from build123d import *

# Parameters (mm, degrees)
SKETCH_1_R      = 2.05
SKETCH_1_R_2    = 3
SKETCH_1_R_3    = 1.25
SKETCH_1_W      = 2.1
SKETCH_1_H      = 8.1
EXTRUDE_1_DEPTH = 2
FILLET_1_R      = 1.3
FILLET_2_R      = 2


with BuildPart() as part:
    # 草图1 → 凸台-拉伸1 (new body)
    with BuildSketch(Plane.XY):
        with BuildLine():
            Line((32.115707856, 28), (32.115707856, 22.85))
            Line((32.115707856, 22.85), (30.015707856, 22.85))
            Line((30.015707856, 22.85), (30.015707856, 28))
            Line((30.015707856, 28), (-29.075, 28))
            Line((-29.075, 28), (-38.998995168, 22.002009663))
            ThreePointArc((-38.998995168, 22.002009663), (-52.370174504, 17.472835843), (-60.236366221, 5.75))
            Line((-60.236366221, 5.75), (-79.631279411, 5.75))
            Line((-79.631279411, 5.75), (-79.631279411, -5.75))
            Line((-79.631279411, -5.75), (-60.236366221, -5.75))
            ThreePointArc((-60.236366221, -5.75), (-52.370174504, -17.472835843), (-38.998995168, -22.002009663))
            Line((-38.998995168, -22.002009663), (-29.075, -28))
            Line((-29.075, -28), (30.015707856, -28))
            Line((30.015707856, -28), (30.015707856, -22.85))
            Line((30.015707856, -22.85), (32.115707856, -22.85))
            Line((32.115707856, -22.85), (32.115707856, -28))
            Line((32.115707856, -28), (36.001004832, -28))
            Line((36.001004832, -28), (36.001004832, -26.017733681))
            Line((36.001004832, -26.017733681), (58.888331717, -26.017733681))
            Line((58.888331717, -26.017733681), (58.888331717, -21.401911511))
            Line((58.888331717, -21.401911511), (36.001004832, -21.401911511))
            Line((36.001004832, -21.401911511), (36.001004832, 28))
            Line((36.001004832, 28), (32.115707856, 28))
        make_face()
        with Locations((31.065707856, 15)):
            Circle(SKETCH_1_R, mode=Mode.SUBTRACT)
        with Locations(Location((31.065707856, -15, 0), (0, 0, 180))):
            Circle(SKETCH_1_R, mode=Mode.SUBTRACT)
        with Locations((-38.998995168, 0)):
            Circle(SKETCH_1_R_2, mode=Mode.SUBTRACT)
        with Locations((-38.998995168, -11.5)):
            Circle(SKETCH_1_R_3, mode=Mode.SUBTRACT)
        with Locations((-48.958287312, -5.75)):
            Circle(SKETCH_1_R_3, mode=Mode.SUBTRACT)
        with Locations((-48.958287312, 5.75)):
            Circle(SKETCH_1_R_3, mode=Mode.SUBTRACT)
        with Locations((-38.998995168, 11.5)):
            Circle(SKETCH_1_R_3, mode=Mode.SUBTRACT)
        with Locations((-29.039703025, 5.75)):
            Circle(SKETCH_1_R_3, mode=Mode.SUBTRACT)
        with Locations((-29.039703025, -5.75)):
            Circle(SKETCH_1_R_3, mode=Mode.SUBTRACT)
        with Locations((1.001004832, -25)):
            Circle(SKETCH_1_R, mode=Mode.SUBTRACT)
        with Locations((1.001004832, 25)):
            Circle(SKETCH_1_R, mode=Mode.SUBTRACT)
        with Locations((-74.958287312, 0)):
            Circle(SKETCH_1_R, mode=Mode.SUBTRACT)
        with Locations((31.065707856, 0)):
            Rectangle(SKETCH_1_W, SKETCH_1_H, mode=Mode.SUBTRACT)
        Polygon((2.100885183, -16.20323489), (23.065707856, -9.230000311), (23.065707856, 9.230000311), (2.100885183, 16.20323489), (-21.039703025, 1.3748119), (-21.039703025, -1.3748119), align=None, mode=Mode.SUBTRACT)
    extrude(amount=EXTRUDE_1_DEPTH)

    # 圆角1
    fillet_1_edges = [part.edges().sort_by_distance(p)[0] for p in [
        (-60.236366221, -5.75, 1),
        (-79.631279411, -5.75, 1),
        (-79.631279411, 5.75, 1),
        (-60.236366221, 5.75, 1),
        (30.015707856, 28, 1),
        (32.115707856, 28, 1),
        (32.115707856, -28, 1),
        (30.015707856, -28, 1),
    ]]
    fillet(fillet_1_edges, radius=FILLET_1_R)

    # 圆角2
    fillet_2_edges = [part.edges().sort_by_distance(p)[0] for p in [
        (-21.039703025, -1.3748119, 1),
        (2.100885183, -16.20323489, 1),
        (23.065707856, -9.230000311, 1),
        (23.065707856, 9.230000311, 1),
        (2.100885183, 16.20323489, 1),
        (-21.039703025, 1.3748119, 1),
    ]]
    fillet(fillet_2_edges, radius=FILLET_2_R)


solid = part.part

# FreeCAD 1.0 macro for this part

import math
import FreeCAD as App
import Part
import Sketcher
Q = App.Units.Quantity


def edges_at(feature, points):
    """Names of the edges that pass closest to the given points."""
    edges = feature.Shape.Edges
    near = lambda p: min(range(len(edges)), key=lambda i: edges[i].distToShape(Part.Vertex(*p))[0])
    return sorted({f"Edge{near(p) + 1}" for p in points})

doc = App.newDocument("Part")
body = doc.addObject("PartDesign::Body", "Body")

sketch1 = body.newObject("Sketcher::SketchObject", "Sketch")
sketch1.AttachmentSupport = (doc.getObject("XY_Plane"), [""])
sketch1.MapMode = "FlatFace"
sketch1.addGeometry([
    Part.LineSegment(App.Vector(32.1, 28, 0), App.Vector(32.1, 22.9, 0)),
    Part.LineSegment(App.Vector(32.1, 22.9, 0), App.Vector(30, 22.9, 0)),
    Part.LineSegment(App.Vector(30, 22.9, 0), App.Vector(30, 28, 0)),
    Part.LineSegment(App.Vector(30, 28, 0), App.Vector(-29.1, 28, 0)),
    Part.LineSegment(App.Vector(-29.1, 28, 0), App.Vector(-39, 22, 0)),
    Part.ArcOfCircle(Part.Circle(App.Vector(-39, 0, 0), App.Vector(0, 0, 1), 22), math.radians(90), math.radians(165)),
    Part.LineSegment(App.Vector(-60.2, 5.8, 0), App.Vector(-79.6, 5.8, 0)),
    Part.LineSegment(App.Vector(-79.6, 5.8, 0), App.Vector(-79.6, -5.8, 0)),
    Part.LineSegment(App.Vector(-79.6, -5.8, 0), App.Vector(-60.2, -5.8, 0)),
    Part.ArcOfCircle(Part.Circle(App.Vector(-39, 0, 0), App.Vector(0, 0, 1), 22), math.radians(-165), math.radians(-90)),
    Part.LineSegment(App.Vector(-39, -22, 0), App.Vector(-29.1, -28, 0)),
    Part.LineSegment(App.Vector(-29.1, -28, 0), App.Vector(30, -28, 0)),
    Part.LineSegment(App.Vector(30, -28, 0), App.Vector(30, -22.9, 0)),
    Part.LineSegment(App.Vector(30, -22.9, 0), App.Vector(32.1, -22.9, 0)),
    Part.LineSegment(App.Vector(32.1, -22.9, 0), App.Vector(32.1, -28, 0)),
    Part.LineSegment(App.Vector(32.1, -28, 0), App.Vector(36, -28, 0)),
    Part.LineSegment(App.Vector(36, -28, 0), App.Vector(36, -26, 0)),
    Part.LineSegment(App.Vector(36, -26, 0), App.Vector(58.9, -26, 0)),
    Part.LineSegment(App.Vector(58.9, -26, 0), App.Vector(58.9, -21.4, 0)),
    Part.LineSegment(App.Vector(58.9, -21.4, 0), App.Vector(36, -21.4, 0)),
    Part.LineSegment(App.Vector(36, -21.4, 0), App.Vector(36, 28, 0)),
    Part.LineSegment(App.Vector(36, 28, 0), App.Vector(32.1, 28, 0)),
    Part.Circle(App.Vector(-75, 0, 0), App.Vector(0, 0, 1), 2),
    Part.Circle(App.Vector(-39, -11.5, 0), App.Vector(0, 0, 1), 1.2),
    Part.Circle(App.Vector(-49, -5.8, 0), App.Vector(0, 0, 1), 1.2),
    Part.Circle(App.Vector(-39, 0, 0), App.Vector(0, 0, 1), 3),
    Part.Circle(App.Vector(-29, -5.8, 0), App.Vector(0, 0, 1), 1.2),
    Part.Circle(App.Vector(1, -25, 0), App.Vector(0, 0, 1), 2),
    Part.Circle(App.Vector(31.1, -15, 0), App.Vector(0, 0, 1), 2),
    Part.LineSegment(App.Vector(23.1, -9.2, 0), App.Vector(2.1, -16.2, 0)),
    Part.LineSegment(App.Vector(2.1, -16.2, 0), App.Vector(-21, -1.4, 0)),
    Part.LineSegment(App.Vector(-21, -1.4, 0), App.Vector(-21, 1.4, 0)),
    Part.LineSegment(App.Vector(-21, 1.4, 0), App.Vector(2.1, 16.2, 0)),
    Part.LineSegment(App.Vector(2.1, 16.2, 0), App.Vector(23.1, 9.2, 0)),
    Part.LineSegment(App.Vector(23.1, 9.2, 0), App.Vector(23.1, -9.2, 0)),
    Part.LineSegment(App.Vector(32.1, -4, 0), App.Vector(30, -4, 0)),
    Part.LineSegment(App.Vector(30, -4, 0), App.Vector(30, 4, 0)),
    Part.LineSegment(App.Vector(30, 4, 0), App.Vector(32.1, 4, 0)),
    Part.LineSegment(App.Vector(32.1, 4, 0), App.Vector(32.1, -4, 0)),
    Part.Circle(App.Vector(-49, 5.8, 0), App.Vector(0, 0, 1), 1.2),
    Part.Circle(App.Vector(-29, 5.8, 0), App.Vector(0, 0, 1), 1.2),
    Part.Circle(App.Vector(-39, 11.5, 0), App.Vector(0, 0, 1), 1.2),
    Part.Circle(App.Vector(1, 25, 0), App.Vector(0, 0, 1), 2),
    Part.Circle(App.Vector(31.1, 15, 0), App.Vector(0, 0, 1), 2),
], False)
sketch1.addConstraint([
    Sketcher.Constraint("Coincident", 0, 2, 1, 1),
    Sketcher.Constraint("Coincident", 1, 2, 2, 1),
    Sketcher.Constraint("Coincident", 2, 2, 3, 1),
    Sketcher.Constraint("Coincident", 3, 2, 4, 1),
    Sketcher.Constraint("Coincident", 4, 2, 5, 1),
    Sketcher.Constraint("Coincident", 5, 2, 6, 1),
    Sketcher.Constraint("Coincident", 6, 2, 7, 1),
    Sketcher.Constraint("Coincident", 7, 2, 8, 1),
    Sketcher.Constraint("Coincident", 8, 2, 9, 1),
    Sketcher.Constraint("Coincident", 9, 2, 10, 1),
    Sketcher.Constraint("Coincident", 10, 2, 11, 1),
    Sketcher.Constraint("Coincident", 11, 2, 12, 1),
    Sketcher.Constraint("Coincident", 12, 2, 13, 1),
    Sketcher.Constraint("Coincident", 13, 2, 14, 1),
    Sketcher.Constraint("Coincident", 14, 2, 15, 1),
    Sketcher.Constraint("Coincident", 15, 2, 16, 1),
    Sketcher.Constraint("Coincident", 16, 2, 17, 1),
    Sketcher.Constraint("Coincident", 17, 2, 18, 1),
    Sketcher.Constraint("Coincident", 18, 2, 19, 1),
    Sketcher.Constraint("Coincident", 19, 2, 20, 1),
    Sketcher.Constraint("Coincident", 20, 2, 21, 1),
    Sketcher.Constraint("Coincident", 21, 2, 0, 1),
    Sketcher.Constraint("Coincident", 29, 2, 30, 1),
    Sketcher.Constraint("Coincident", 30, 2, 31, 1),
    Sketcher.Constraint("Coincident", 31, 2, 32, 1),
    Sketcher.Constraint("Coincident", 32, 2, 33, 1),
    Sketcher.Constraint("Coincident", 33, 2, 34, 1),
    Sketcher.Constraint("Coincident", 34, 2, 29, 1),
    Sketcher.Constraint("Coincident", 35, 2, 36, 1),
    Sketcher.Constraint("Coincident", 36, 2, 37, 1),
    Sketcher.Constraint("Coincident", 37, 2, 38, 1),
    Sketcher.Constraint("Coincident", 38, 2, 35, 1),
    Sketcher.Constraint("Vertical", 0),
    Sketcher.Constraint("Horizontal", 1),
    Sketcher.Constraint("Vertical", 2),
    Sketcher.Constraint("Horizontal", 3),
    Sketcher.Constraint("Horizontal", 6),
    Sketcher.Constraint("Vertical", 7),
    Sketcher.Constraint("Horizontal", 8),
    Sketcher.Constraint("Horizontal", 11),
    Sketcher.Constraint("Vertical", 12),
    Sketcher.Constraint("Horizontal", 13),
    Sketcher.Constraint("Vertical", 14),
    Sketcher.Constraint("Horizontal", 15),
    Sketcher.Constraint("Vertical", 16),
    Sketcher.Constraint("Horizontal", 17),
    Sketcher.Constraint("Vertical", 18),
    Sketcher.Constraint("Horizontal", 19),
    Sketcher.Constraint("Vertical", 20),
    Sketcher.Constraint("Horizontal", 21),
    Sketcher.Constraint("Vertical", 31),
    Sketcher.Constraint("Vertical", 34),
    Sketcher.Constraint("Horizontal", 35),
    Sketcher.Constraint("Vertical", 36),
    Sketcher.Constraint("Horizontal", 37),
    Sketcher.Constraint("Vertical", 38),
    Sketcher.Constraint("Coincident", 9, 3, 5, 3),
    Sketcher.Constraint("Coincident", 25, 3, 5, 3),
    Sketcher.Constraint("Equal", 5, 9),
    Sketcher.Constraint("Equal", 23, 24),
    Sketcher.Constraint("Equal", 24, 26),
    Sketcher.Constraint("Equal", 22, 27),
    Sketcher.Constraint("Equal", 27, 28),
    Sketcher.Constraint("Equal", 26, 39),
    Sketcher.Constraint("Equal", 39, 40),
    Sketcher.Constraint("Equal", 40, 41),
    Sketcher.Constraint("Equal", 28, 42),
    Sketcher.Constraint("Equal", 42, 43),
    Sketcher.Constraint("Symmetric", 24, 3, 39, 3, -1),
    Sketcher.Constraint("Symmetric", 26, 3, 40, 3, -1),
    Sketcher.Constraint("Symmetric", 23, 3, 41, 3, -1),
    Sketcher.Constraint("Symmetric", 27, 3, 42, 3, -1),
    Sketcher.Constraint("Symmetric", 28, 3, 43, 3, -1),
    Sketcher.Constraint("Symmetric", 5, 2, 8, 2, -1),
    Sketcher.Constraint("Symmetric", 3, 2, 10, 2, -1),
    Sketcher.Constraint("Symmetric", 1, 2, 12, 2, -1),
    Sketcher.Constraint("Symmetric", 15, 2, 20, 2, -1),
    Sketcher.Constraint("Symmetric", 29, 2, 32, 2, -1),
    Sketcher.Constraint("PointOnObject", 22, 3, -1),
    Sketcher.Constraint("Horizontal", 24, 3, 26, 3),
    Sketcher.Constraint("Horizontal", 40, 3, 5, 2),
    Sketcher.Constraint("Horizontal", 11, 2, 14, 2),
    Sketcher.Constraint("Vertical", 9, 3, 23, 3),
    Sketcher.Constraint("Vertical", 41, 3, 4, 2),
    Sketcher.Constraint("Vertical", 4, 2, 9, 2),
    Sketcher.Constraint("Vertical", 0, 2, 13, 2),
    Sketcher.Constraint("Vertical", 12, 2, 35, 2),
    Sketcher.Constraint("Vertical", 21, 2, 37, 2),
    Sketcher.Constraint("Equal", 30, 32),
    Sketcher.Constraint("Equal", 29, 33),
    Sketcher.Constraint("Diameter", 25, Q("6 mm")),
    Sketcher.Constraint("Diameter", 22, Q("4.1 mm")),
    Sketcher.Constraint("Diameter", 23, Q("2.5 mm")),
    Sketcher.Constraint("DistanceX", 1, 2, 1, 1, Q("2.1 mm")),
    Sketcher.Constraint("DistanceY", 7, 2, 7, 1, Q("11.5 mm")),
    Sketcher.Constraint("DistanceY", 36, 1, 36, 2, Q("8.1 mm")),
    Sketcher.Constraint("DistanceY", 27, 3, -1, 1, Q("25 mm")),
    Sketcher.Constraint("DistanceY", 28, 3, -1, 1, Q("15 mm")),
    Sketcher.Constraint("DistanceY", -1, 1, 2, 2, Q("28 mm")),
    Sketcher.Constraint("DistanceX", 22, 3, 24, 3, Q("26 mm")),
    Sketcher.Constraint("DistanceX", 23, 3, 27, 3, Q("40 mm")),
    Sketcher.Constraint("DistanceX", 42, 3, 20, 2, Q("35 mm")),
    Sketcher.Constraint("DistanceX", 26, 3, 30, 2, Q("8 mm")),
    Sketcher.Constraint("DistanceX", 33, 2, 43, 3, Q("8 mm")),
    Sketcher.Constraint("DistanceY", 0, 2, 0, 1, Q("5.15 mm")),
    Sketcher.Constraint("DistanceY", 34, 2, 34, 1, Q("18.460001 mm")),
    Sketcher.Constraint("DistanceY", 23, 3, -1, 1, Q("11.5 mm")),
    Sketcher.Constraint("DistanceY", 12, 2, 35, 2, Q("18.8 mm")),
    Sketcher.Constraint("Radius", 5, Q("22.00201 mm")),
    Sketcher.Constraint("DistanceX", 43, 3, 0, 2, Q("1.05 mm")),
    Sketcher.Constraint("DistanceX", 3, 2, -1, 1, Q("29.075 mm")),
    Sketcher.Constraint("DistanceY", 20, 1, 20, 2, Q("49.401912 mm")),
    Sketcher.Constraint("DistanceX", 3, 2, 3, 1, Q("59.090708 mm")),
    Sketcher.Constraint("DistanceX", 6, 2, 6, 1, Q("19.394913 mm")),
    Sketcher.Constraint("DistanceX", 15, 1, 15, 2, Q("3.885297 mm")),
    Sketcher.Constraint("DistanceX", 17, 1, 17, 2, Q("22.887327 mm")),
    Sketcher.Constraint("DistanceY", 16, 1, 16, 2, Q("1.982266 mm")),
    Sketcher.Constraint("DistanceY", 31, 1, 31, 2, Q("2.749624 mm")),
    Sketcher.Constraint("DistanceX", 26, 3, 28, 3, Q("60.105411 mm")),
    Sketcher.Constraint("DistanceX", 5, 2, 39, 3, Q("11.278079 mm")),
    Sketcher.Constraint("DistanceX", 27, 3, 29, 2, Q("1.09988 mm")),
    Sketcher.Constraint("Distance", 29, Q("22.094112 mm")),
])
pad1 = body.newObject("PartDesign::Pad", "Pad")
pad1.Profile = sketch1
pad1.Length = 2
doc.recompute()

fillet = body.newObject("PartDesign::Fillet", "Fillet")
fillet.Base = (pad1, edges_at(pad1, [
    (-60.236, -5.75, 1),
    (-79.631, -5.75, 1),
    (-79.631, 5.75, 1),
    (-60.236, 5.75, 1),
    (30.016, 28, 1),
    (32.116, 28, 1),
    (32.116, -28, 1),
    (30.016, -28, 1),
]))
fillet.Radius = 1.3
doc.recompute()

fillet2 = body.newObject("PartDesign::Fillet", "Fillet001")
fillet2.Base = (fillet, edges_at(fillet, [
    (-21.04, -1.375, 1),
    (2.101, -16.203, 1),
    (23.066, -9.23, 1),
    (23.066, 9.23, 1),
    (2.101, 16.203, 1),
    (-21.04, 1.375, 1),
]))
fillet2.Radius = 2

doc.recompute()
